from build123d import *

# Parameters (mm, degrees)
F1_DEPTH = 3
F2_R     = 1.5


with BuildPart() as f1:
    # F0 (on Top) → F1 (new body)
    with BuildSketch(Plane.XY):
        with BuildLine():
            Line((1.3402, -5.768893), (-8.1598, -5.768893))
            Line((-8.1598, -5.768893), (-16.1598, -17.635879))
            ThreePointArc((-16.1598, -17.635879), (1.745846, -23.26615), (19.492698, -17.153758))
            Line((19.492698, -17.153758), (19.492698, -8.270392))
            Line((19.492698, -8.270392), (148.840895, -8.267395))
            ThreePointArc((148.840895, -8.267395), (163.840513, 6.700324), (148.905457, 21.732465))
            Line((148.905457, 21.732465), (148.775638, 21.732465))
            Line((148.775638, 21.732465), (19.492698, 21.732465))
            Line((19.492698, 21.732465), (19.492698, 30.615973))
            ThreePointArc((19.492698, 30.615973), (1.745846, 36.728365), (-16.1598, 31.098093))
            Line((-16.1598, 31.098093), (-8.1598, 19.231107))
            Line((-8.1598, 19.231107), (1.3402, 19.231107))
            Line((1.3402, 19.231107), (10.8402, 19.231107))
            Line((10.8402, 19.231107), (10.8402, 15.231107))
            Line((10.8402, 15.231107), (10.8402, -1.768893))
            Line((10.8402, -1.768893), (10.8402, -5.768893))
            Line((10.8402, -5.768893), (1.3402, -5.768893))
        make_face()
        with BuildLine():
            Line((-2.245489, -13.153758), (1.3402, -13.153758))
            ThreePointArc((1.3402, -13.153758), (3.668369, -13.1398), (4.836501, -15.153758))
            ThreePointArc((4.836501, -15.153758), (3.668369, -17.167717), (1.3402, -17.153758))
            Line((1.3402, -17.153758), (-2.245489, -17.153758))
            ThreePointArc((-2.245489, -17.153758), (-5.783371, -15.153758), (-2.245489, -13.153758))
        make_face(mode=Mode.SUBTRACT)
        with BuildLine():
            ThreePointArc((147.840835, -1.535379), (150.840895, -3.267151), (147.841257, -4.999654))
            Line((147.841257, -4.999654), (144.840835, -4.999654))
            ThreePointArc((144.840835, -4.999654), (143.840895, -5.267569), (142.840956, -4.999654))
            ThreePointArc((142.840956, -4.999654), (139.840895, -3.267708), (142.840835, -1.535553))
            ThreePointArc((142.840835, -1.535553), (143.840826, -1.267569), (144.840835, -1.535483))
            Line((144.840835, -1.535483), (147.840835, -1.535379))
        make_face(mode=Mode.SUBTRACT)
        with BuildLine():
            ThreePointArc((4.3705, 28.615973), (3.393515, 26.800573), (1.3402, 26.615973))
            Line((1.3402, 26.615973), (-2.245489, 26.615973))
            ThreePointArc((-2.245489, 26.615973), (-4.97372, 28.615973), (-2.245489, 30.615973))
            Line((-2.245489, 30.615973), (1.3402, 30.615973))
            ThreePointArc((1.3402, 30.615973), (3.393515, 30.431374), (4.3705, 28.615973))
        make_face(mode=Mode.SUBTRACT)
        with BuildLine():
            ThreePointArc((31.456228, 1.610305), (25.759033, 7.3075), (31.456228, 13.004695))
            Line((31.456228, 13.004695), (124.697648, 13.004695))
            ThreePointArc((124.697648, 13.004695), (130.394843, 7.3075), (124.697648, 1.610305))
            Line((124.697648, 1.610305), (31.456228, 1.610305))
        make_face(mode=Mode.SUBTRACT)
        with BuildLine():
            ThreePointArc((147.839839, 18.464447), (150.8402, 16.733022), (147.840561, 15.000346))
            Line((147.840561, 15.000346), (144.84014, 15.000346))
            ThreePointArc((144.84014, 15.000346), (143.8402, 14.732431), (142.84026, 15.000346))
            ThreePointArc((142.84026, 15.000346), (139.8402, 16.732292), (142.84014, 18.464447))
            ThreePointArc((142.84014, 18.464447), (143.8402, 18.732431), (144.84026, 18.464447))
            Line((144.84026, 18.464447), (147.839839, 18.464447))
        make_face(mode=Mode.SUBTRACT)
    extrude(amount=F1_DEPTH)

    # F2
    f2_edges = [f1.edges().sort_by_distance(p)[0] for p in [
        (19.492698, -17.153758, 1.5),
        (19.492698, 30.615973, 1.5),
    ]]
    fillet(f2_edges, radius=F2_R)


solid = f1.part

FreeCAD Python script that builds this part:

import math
import FreeCAD as App
import Part
import Sketcher
from FreeCAD import Vector
Q = App.Units.Quantity


def edges_at(feature, points):
    """Names of the edges that pass closest to the given points."""
    edges = feature.Shape.Edges
    near = lambda p: min(range(len(edges)), key=lambda i: edges[i].distToShape(Part.Vertex(*p))[0])
    return sorted({f"Edge{near(p) + 1}" for p in points})

doc = App.newDocument("Part")
body = doc.addObject("PartDesign::Body", "Body")

sketch1 = body.newObject("Sketcher::SketchObject", "Sketch")
sketch1.AttachmentSupport = (doc.getObject("XY_Plane"), [""])
sketch1.MapMode = "FlatFace"
sketch1.addGeometry([
    Part.LineSegment(Vector(-8.2, -5.8, 0), Vector(-16.2, -17.6, 0)),
    Part.ArcOfCircle(Part.Circle(Vector(1.3, 6.7, 0), Vector(0, 0, 1), 30), math.radians(-126), math.radians(-53)),
    Part.LineSegment(Vector(19.5, -17.2, 0), Vector(19.5, -8.3, 0)),
    Part.LineSegment(Vector(19.5, -8.3, 0), Vector(148.8, -8.3, 0)),
    Part.ArcOfCircle(Part.Circle(Vector(148.8, 6.7, 0), Vector(0, 0, 1), 15), math.radians(-90), math.radians(90)),
    Part.LineSegment(Vector(148.9, 21.7, 0), Vector(19.5, 21.7, 0)),
    Part.LineSegment(Vector(19.5, 21.7, 0), Vector(19.5, 30.6, 0)),
    Part.ArcOfCircle(Part.Circle(Vector(1.3, 6.7, 0), Vector(0, 0, 1), 30), math.radians(53), math.radians(126)),
    Part.LineSegment(Vector(-16.2, 31.1, 0), Vector(-8.2, 19.2, 0)),
    Part.LineSegment(Vector(-8.2, 19.2, 0), Vector(10.8, 19.2, 0)),
    Part.LineSegment(Vector(10.8, 19.2, 0), Vector(10.8, -5.8, 0)),
    Part.LineSegment(Vector(10.8, -5.8, 0), Vector(-8.2, -5.8, 0)),
    Part.ArcOfCircle(Part.Circle(Vector(-3.4, -15.2, 0), Vector(0, 0, 1), 2.3), math.radians(59), math.radians(301)),
    Part.LineSegment(Vector(-2.2, -13.2, 0), Vector(1.3, -13.2, 0)),
    Part.ArcOfCircle(Part.Circle(Vector(2.5, -15.2, 0), Vector(0, 0, 1), 2.3), math.radians(0), math.radians(120)),
    Part.ArcOfCircle(Part.Circle(Vector(2.5, -15.2, 0), Vector(0, 0, 1), 2.3), math.radians(-120), math.radians(0)),
    Part.LineSegment(Vector(1.3, -17.2, 0), Vector(-2.2, -17.2, 0)),
    Part.LineSegment(Vector(144.8, -1.5, 0), Vector(147.8, -1.5, 0)),
    Part.ArcOfCircle(Part.Circle(Vector(148.8, -3.3, 0), Vector(0, 0, 1), 2), math.radians(-120), math.radians(120)),
    Part.LineSegment(Vector(147.8, -5, 0), Vector(144.8, -5, 0)),
    Part.ArcOfCircle(Part.Circle(Vector(143.8, -3.3, 0), Vector(0, 0, 1), 2), math.radians(-120), math.radians(-60)),
    Part.ArcOfCircle(Part.Circle(Vector(141.8, -3.3, 0), Vector(0, 0, 1), 2), math.radians(60), math.radians(300)),
    Part.ArcOfCircle(Part.Circle(Vector(143.8, -3.3, 0), Vector(0, 0, 1), 2), math.radians(60), math.radians(120)),
    Part.ArcOfCircle(Part.Circle(Vector(2.2, 28.6, 0), Vector(0, 0, 1), 2.2), math.radians(0), math.radians(113)),
    Part.ArcOfCircle(Part.Circle(Vector(2.2, 28.6, 0), Vector(0, 0, 1), 2.2), math.radians(-113), math.radians(0)),
    Part.LineSegment(Vector(1.3, 26.6, 0), Vector(-2.2, 26.6, 0)),
    Part.ArcOfCircle(Part.Circle(Vector(-2.9, 28.6, 0), Vector(0, 0, 1), 2.1), math.radians(72), math.radians(288)),
    Part.LineSegment(Vector(-2.2, 30.6, 0), Vector(1.3, 30.6, 0)),
    Part.LineSegment(Vector(124.7, 1.6, 0), Vector(31.5, 1.6, 0)),
    Part.ArcOfCircle(Part.Circle(Vector(31.5, 7.3, 0), Vector(0, 0, 1), 5.7), math.radians(90), math.radians(270)),
    Part.LineSegment(Vector(31.5, 13, 0), Vector(124.7, 13, 0)),
    Part.ArcOfCircle(Part.Circle(Vector(124.7, 7.3, 0), Vector(0, 0, 1), 5.7), math.radians(-90), math.radians(90)),
    Part.LineSegment(Vector(144.8, 18.5, 0), Vector(147.8, 18.5, 0)),
    Part.ArcOfCircle(Part.Circle(Vector(148.8, 16.7, 0), Vector(0, 0, 1), 2), math.radians(-120), math.radians(120)),
    Part.LineSegment(Vector(147.8, 15, 0), Vector(144.8, 15, 0)),
    Part.ArcOfCircle(Part.Circle(Vector(143.8, 16.7, 0), Vector(0, 0, 1), 2), math.radians(-120), math.radians(-60)),
    Part.ArcOfCircle(Part.Circle(Vector(141.8, 16.7, 0), Vector(0, 0, 1), 2), math.radians(60), math.radians(300)),
    Part.ArcOfCircle(Part.Circle(Vector(143.8, 16.7, 0), Vector(0, 0, 1), 2), math.radians(60), math.radians(120)),
], False)
sketch1.addConstraint([
    Sketcher.Constraint("Coincident", 0, 2, 1, 1),
    Sketcher.Constraint("Coincident", 1, 2, 2, 1),
    Sketcher.Constraint("Coincident", 2, 2, 3, 1),
    Sketcher.Constraint("Tangent", 3, 2, 4, 1),
    Sketcher.Constraint("Coincident", 4, 2, 5, 1),
    Sketcher.Constraint("Coincident", 5, 2, 6, 1),
    Sketcher.Constraint("Coincident", 6, 2, 7, 1),
    Sketcher.Constraint("Coincident", 7, 2, 8, 1),
    Sketcher.Constraint("Coincident", 8, 2, 9, 1),
    Sketcher.Constraint("Coincident", 9, 2, 10, 1),
    Sketcher.Constraint("Coincident", 10, 2, 11, 1),
    Sketcher.Constraint("Coincident", 11, 2, 0, 1),
    Sketcher.Constraint("Coincident", 12, 1, 13, 1),
    Sketcher.Constraint("Coincident", 13, 2, 14, 2),
    Sketcher.Constraint("Tangent", 14, 1, 15, 2),
    Sketcher.Constraint("Coincident", 15, 1, 16, 1),
    Sketcher.Constraint("Coincident", 16, 2, 12, 2),
    Sketcher.Constraint("Coincident", 17, 2, 18, 2),
    Sketcher.Constraint("Coincident", 18, 1, 19, 1),
    Sketcher.Constraint("Coincident", 19, 2, 20, 2),
    Sketcher.Constraint("Coincident", 20, 1, 21, 2),
    Sketcher.Constraint("Coincident", 21, 1, 22, 2),
    Sketcher.Constraint("Coincident", 22, 1, 17, 1),
    Sketcher.Constraint("Tangent", 23, 1, 24, 2),
    Sketcher.Constraint("Coincident", 24, 1, 25, 1),
    Sketcher.Constraint("Coincident", 25, 2, 26, 2),
    Sketcher.Constraint("Coincident", 26, 1, 27, 1),
    Sketcher.Constraint("Coincident", 27, 2, 23, 2),
    Sketcher.Constraint("Tangent", 28, 2, 29, 2),
    Sketcher.Constraint("Tangent", 29, 1, 30, 1),
    Sketcher.Constraint("Tangent", 30, 2, 31, 2),
    Sketcher.Constraint("Tangent", 31, 1, 28, 1),
    Sketcher.Constraint("Coincident", 32, 2, 33, 2),
    Sketcher.Constraint("Coincident", 33, 1, 34, 1),
    Sketcher.Constraint("Coincident", 34, 2, 35, 2),
    Sketcher.Constraint("Coincident", 35, 1, 36, 2),
    Sketcher.Constraint("Coincident", 36, 1, 37, 2),
    Sketcher.Constraint("Coincident", 37, 1, 32, 1),
    Sketcher.Constraint("Vertical", 2),
    Sketcher.Constraint("Horizontal", 5),
    Sketcher.Constraint("Vertical", 6),
    Sketcher.Constraint("Horizontal", 9),
    Sketcher.Constraint("Vertical", 10),
    Sketcher.Constraint("Horizontal", 11),
    Sketcher.Constraint("Horizontal", 13),
    Sketcher.Constraint("Horizontal", 16),
    Sketcher.Constraint("Horizontal", 19),
    Sketcher.Constraint("Horizontal", 25),
    Sketcher.Constraint("Horizontal", 27),
    Sketcher.Constraint("Horizontal", 28),
    Sketcher.Constraint("Horizontal", 30),
    Sketcher.Constraint("Horizontal", 32),
    Sketcher.Constraint("Horizontal", 34),
    Sketcher.Constraint("Coincident", 7, 3, 1, 3),
    Sketcher.Constraint("Coincident", 22, 3, 20, 3),
    Sketcher.Constraint("Coincident", 37, 3, 35, 3),
    Sketcher.Constraint("Equal", 14, 15),
    Sketcher.Constraint("Equal", 18, 21),
    Sketcher.Constraint("Equal", 21, 22),
    Sketcher.Constraint("Equal", 23, 24),
    Sketcher.Constraint("Equal", 22, 33),
    Sketcher.Constraint("Equal", 20, 35),
    Sketcher.Constraint("Equal", 33, 36),
    Sketcher.Constraint("Equal", 36, 37),
    Sketcher.Constraint("Horizontal", 12, 3, 14, 3),
    Sketcher.Constraint("Horizontal", 24, 3, 26, 3),
    Sketcher.Constraint("Horizontal", 15, 3, 14, 1),
    Sketcher.Constraint("Horizontal", 1, 2, 15, 1),
    Sketcher.Constraint("Horizontal", 19, 2, 20, 1),
    Sketcher.Constraint("Horizontal", 26, 3, 23, 1),
    Sketcher.Constraint("Horizontal", 6, 2, 26, 1),
    Sketcher.Constraint("Horizontal", 34, 2, 35, 1),
    Sketcher.Constraint("Horizontal", 32, 2, 36, 1),
    Sketcher.Constraint("Vertical", 18, 3, 3, 2),
    Sketcher.Constraint("Vertical", 2, 2, 5, 2),
    Sketcher.Constraint("Vertical", 0, 2, 7, 2),
    Sketcher.Constraint("Vertical", 8, 2, 11, 2),
    Sketcher.Constraint("Vertical", 7, 3, 13, 2),
    Sketcher.Constraint("Vertical", 13, 2, 15, 1),
    Sketcher.Constraint("Vertical", 19, 2, 22, 1),
    Sketcher.Constraint("Vertical", 15, 1, 24, 1),
    Sketcher.Constraint("Vertical", 16, 2, 25, 2),
    Sketcher.Constraint("Vertical", 25, 2, 26, 1),
    Sketcher.Constraint("Equal", 19, 34),
    Sketcher.Constraint("Equal", 0, 8),
    Sketcher.Constraint("Radius", 1, Q("30 mm")),
    Sketcher.Constraint("Radius", 4, Q("15 mm")),
    Sketcher.Constraint("Radius", 7, Q("29.999998 mm")),
    Sketcher.Constraint("Radius", 18, Q("2 mm")),
    Sketcher.Constraint("DistanceX", 9, 1, 9, 2, Q("19 mm")),
    Sketcher.Constraint("DistanceY", 10, 2, 10, 1, Q("25 mm")),
    Sketcher.Constraint("Distance", 17, Q("3 mm")),
    Sketcher.Constraint("DistanceY", 18, 3, 4, 3, Q("10 mm")),
    Sketcher.Constraint("DistanceX", 20, 3, 18, 3, Q("5 mm")),
    Sketcher.Constraint("DistanceX", 21, 3, 20, 3, Q("2.000001 mm")),
    Sketcher.Constraint("DistanceY", 4, 3, 33, 3, Q("10 mm")),
    Sketcher.Constraint("DistanceX", 35, 3, 33, 3, Q("5 mm")),
    Sketcher.Constraint("DistanceY", 22, 3, 35, 3, Q("19.999998 mm")),
    Sketcher.Constraint("DistanceX", 36, 3, 35, 3, Q("2 mm")),
    Sketcher.Constraint("DistanceY", 1, 2, 15, 3, Q("1.999999 mm")),
    Sketcher.Constraint("DistanceY", 23, 3, 6, 2, Q("1.999999 mm")),
    Sketcher.Constraint("DistanceX", 7, 2, 8, 2, Q("8 mm")),
    Sketcher.Constraint("DistanceX", 21, 1, 19, 2, Q("2 mm")),
    Sketcher.Constraint("DistanceX", 0, 2, 1, 3, Q("17.499999 mm")),
    Sketcher.Constraint("Radius", 12, Q("2.334251 mm")),
    Sketcher.Constraint("Radius", 23, Q("2.17515 mm")),
    Sketcher.Constraint("Radius", 26, Q("2.097191 mm")),
    Sketcher.Constraint("Radius", 14, Q("2.320184 mm")),
    Sketcher.Constraint("Radius", 29, Q("5.697195 mm")),
    Sketcher.Constraint("DistanceX", 5, 2, 5, 1, Q("129.412759 mm")),
    Sketcher.Constraint("DistanceX", 13, 1, 13, 2, Q("3.585689 mm")),
    Sketcher.Constraint("DistanceX", 28, 2, 28, 1, Q("93.24142 mm")),
    Sketcher.Constraint("DistanceX", 32, 1, 32, 2, Q("2.999579 mm")),
    Sketcher.Constraint("DistanceX", -1, 1, 1, 3, Q("1.340199 mm")),
    Sketcher.Constraint("DistanceY", -1, 1, 29, 3, Q("7.3075 mm")),
    Sketcher.Constraint("DistanceX", -1, 1, 33, 3, Q("148.8402 mm")),
    Sketcher.Constraint("DistanceX", -1, 1, 1, 2, Q("19.492698 mm")),
    Sketcher.Constraint("DistanceX", 31, 3, 4, 3, Q("24.1429 mm")),
    Sketcher.Constraint("DistanceY", 2, 2, 1, 3, Q("15.0015 mm")),
    Sketcher.Constraint("DistanceX", 20, 1, 18, 1, Q("5.000301 mm")),
    Sketcher.Constraint("DistanceY", 10, 2, 28, 2, Q("7.379198 mm")),
    Sketcher.Constraint("DistanceY", 6, 1, 6, 2, Q("8.883508 mm")),
    Sketcher.Constraint("DistanceX", -1, 1, 31, 3, Q("124.697648 mm")),
])
pad1 = body.newObject("PartDesign::Pad", "Pad")
pad1.Profile = sketch1
pad1.Length = 3
doc.recompute()

fillet = body.newObject("PartDesign::Fillet", "Fillet")
fillet.Base = (pad1, edges_at(pad1, [(19.493, -17.154, 1.5), (19.493, 30.616, 1.5)]))
fillet.Radius = 1.5

doc.recompute()
